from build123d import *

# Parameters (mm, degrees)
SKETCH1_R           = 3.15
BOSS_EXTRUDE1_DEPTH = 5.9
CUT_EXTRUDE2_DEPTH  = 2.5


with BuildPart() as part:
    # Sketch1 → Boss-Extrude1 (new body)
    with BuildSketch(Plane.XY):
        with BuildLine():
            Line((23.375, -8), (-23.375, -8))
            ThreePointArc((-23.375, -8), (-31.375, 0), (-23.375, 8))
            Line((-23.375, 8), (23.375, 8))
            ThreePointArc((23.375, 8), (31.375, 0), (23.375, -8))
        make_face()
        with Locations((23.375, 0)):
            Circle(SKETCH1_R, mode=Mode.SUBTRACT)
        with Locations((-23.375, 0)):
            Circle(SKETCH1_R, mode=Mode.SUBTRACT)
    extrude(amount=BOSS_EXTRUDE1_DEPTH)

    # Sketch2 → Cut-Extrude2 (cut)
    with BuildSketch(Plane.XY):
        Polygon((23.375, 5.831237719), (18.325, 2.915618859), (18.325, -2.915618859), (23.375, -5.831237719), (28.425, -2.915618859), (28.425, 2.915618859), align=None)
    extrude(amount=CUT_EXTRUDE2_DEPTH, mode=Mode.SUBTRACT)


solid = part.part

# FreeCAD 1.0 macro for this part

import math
import FreeCAD as App
import Part
import Sketcher

V = App.Vector
Q = App.Units.Quantity

doc = App.newDocument("Part")
body = doc.addObject("PartDesign::Body", "Body")

sketch1 = body.newObject("Sketcher::SketchObject", "Sketch")
sketch1.AttachmentSupport = (doc.getObject("XY_Plane"), [""])
sketch1.MapMode = "FlatFace"
sketch1.addGeometry(Part.LineSegment(V(-23.4, -8, 0), V(23.4, -8, 0)), False)
sketch1.addGeometry(Part.ArcOfCircle(Part.Circle(V(23.4, 0, 0), V(0, 0, 1), 8), math.radians(-90), math.radians(90)), False)
sketch1.addGeometry(Part.LineSegment(V(23.4, 8, 0), V(-23.4, 8, 0)), False)
sketch1.addGeometry(Part.ArcOfCircle(Part.Circle(V(-23.4, 0, 0), V(0, 0, 1), 8), math.radians(90), math.radians(270)), False)
sketch1.addGeometry(Part.Circle(V(23.4, 0, 0), V(0, 0, 1), 3.1), False)
sketch1.addGeometry(Part.Circle(V(-23.4, 0, 0), V(0, 0, 1), 3.1), False)
sketch1.addConstraint(Sketcher.Constraint("Tangent", 0, 2, 1, 1))
sketch1.addConstraint(Sketcher.Constraint("Tangent", 1, 2, 2, 1))
sketch1.addConstraint(Sketcher.Constraint("Tangent", 2, 2, 3, 1))
sketch1.addConstraint(Sketcher.Constraint("Tangent", 3, 2, 0, 1))
sketch1.addConstraint(Sketcher.Constraint("Horizontal", 0))
sketch1.addConstraint(Sketcher.Constraint("Horizontal", 2))
sketch1.addConstraint(Sketcher.Constraint("Coincident", 4, 3, 1, 3))
sketch1.addConstraint(Sketcher.Constraint("Coincident", 5, 3, 3, 3))
sketch1.addConstraint(Sketcher.Constraint("Equal", 4, 5))
sketch1.addConstraint(Sketcher.Constraint("Symmetric", 1, 3, 3, 3, -1, 1))
sketch1.addConstraint(Sketcher.Constraint("Radius", 1, Q("8 mm")))
sketch1.addConstraint(Sketcher.Constraint("Diameter", 4, Q("6.3 mm")))
sketch1.addConstraint(Sketcher.Constraint("DistanceX", 0, 1, 0, 2, Q("46.75 mm")))
pad1 = body.newObject("PartDesign::Pad", "Pad")
pad1.Profile = sketch1
pad1.Length = 5.9

sketch2 = body.newObject("Sketcher::SketchObject", "Sketch001")
sketch2.AttachmentSupport = (doc.getObject("XY_Plane"), [""])
sketch2.MapMode = "FlatFace"
sketch2.addGeometry(Part.LineSegment(V(23, 6, 0), V(18, 3, 0)), False)
sketch2.addGeometry(Part.LineSegment(V(18, 3, 0), V(18, -3, 0)), False)
sketch2.addGeometry(Part.LineSegment(V(18, -3, 0), V(23, -6, 0)), False)
sketch2.addGeometry(Part.LineSegment(V(23, -6, 0), V(28, -3, 0)), False)
sketch2.addGeometry(Part.LineSegment(V(28, -3, 0), V(28, 3, 0)), False)
sketch2.addGeometry(Part.LineSegment(V(28, 3, 0), V(23, 6, 0)), False)
sketch2.addConstraint(Sketcher.Constraint("Coincident", 0, 2, 1, 1))
sketch2.addConstraint(Sketcher.Constraint("Coincident", 1, 2, 2, 1))
sketch2.addConstraint(Sketcher.Constraint("Coincident", 2, 2, 3, 1))
sketch2.addConstraint(Sketcher.Constraint("Coincident", 3, 2, 4, 1))
sketch2.addConstraint(Sketcher.Constraint("Coincident", 4, 2, 5, 1))
sketch2.addConstraint(Sketcher.Constraint("Coincident", 5, 2, 0, 1))
sketch2.addConstraint(Sketcher.Constraint("Vertical", 1))
sketch2.addConstraint(Sketcher.Constraint("Vertical", 4))
sketch2.addConstraint(Sketcher.Constraint("Symmetric", 2, 2, 5, 2, -1))
sketch2.addConstraint(Sketcher.Constraint("Parallel", 0, 3))
sketch2.addConstraint(Sketcher.Constraint("Parallel", 2, 5))
sketch2.addConstraint(Sketcher.Constraint("Horizontal", 1, 2, 3, 2))
sketch2.addConstraint(Sketcher.Constraint("Horizontal", 0, 2, 4, 2))
sketch2.addConstraint(Sketcher.Constraint("Angle", 0, Q("-150 deg")))
sketch2.addConstraint(Sketcher.Constraint("DistanceX", 1, 2, 3, 2, Q("10.1 mm")))
sketch2.addConstraint(Sketcher.Constraint("DistanceX", -1, 1, 0, 2, Q("18.325 mm")))
sketch2.addConstraint(Sketcher.Constraint("DistanceY", 1, 2, 1, 1, Q("5.831238 mm")))
pocket1 = body.newObject("PartDesign::Pocket", "Pocket")
pocket1.Profile = sketch2
pocket1.Length = 2.5
pocket1.Reversed = True

doc.recompute()
